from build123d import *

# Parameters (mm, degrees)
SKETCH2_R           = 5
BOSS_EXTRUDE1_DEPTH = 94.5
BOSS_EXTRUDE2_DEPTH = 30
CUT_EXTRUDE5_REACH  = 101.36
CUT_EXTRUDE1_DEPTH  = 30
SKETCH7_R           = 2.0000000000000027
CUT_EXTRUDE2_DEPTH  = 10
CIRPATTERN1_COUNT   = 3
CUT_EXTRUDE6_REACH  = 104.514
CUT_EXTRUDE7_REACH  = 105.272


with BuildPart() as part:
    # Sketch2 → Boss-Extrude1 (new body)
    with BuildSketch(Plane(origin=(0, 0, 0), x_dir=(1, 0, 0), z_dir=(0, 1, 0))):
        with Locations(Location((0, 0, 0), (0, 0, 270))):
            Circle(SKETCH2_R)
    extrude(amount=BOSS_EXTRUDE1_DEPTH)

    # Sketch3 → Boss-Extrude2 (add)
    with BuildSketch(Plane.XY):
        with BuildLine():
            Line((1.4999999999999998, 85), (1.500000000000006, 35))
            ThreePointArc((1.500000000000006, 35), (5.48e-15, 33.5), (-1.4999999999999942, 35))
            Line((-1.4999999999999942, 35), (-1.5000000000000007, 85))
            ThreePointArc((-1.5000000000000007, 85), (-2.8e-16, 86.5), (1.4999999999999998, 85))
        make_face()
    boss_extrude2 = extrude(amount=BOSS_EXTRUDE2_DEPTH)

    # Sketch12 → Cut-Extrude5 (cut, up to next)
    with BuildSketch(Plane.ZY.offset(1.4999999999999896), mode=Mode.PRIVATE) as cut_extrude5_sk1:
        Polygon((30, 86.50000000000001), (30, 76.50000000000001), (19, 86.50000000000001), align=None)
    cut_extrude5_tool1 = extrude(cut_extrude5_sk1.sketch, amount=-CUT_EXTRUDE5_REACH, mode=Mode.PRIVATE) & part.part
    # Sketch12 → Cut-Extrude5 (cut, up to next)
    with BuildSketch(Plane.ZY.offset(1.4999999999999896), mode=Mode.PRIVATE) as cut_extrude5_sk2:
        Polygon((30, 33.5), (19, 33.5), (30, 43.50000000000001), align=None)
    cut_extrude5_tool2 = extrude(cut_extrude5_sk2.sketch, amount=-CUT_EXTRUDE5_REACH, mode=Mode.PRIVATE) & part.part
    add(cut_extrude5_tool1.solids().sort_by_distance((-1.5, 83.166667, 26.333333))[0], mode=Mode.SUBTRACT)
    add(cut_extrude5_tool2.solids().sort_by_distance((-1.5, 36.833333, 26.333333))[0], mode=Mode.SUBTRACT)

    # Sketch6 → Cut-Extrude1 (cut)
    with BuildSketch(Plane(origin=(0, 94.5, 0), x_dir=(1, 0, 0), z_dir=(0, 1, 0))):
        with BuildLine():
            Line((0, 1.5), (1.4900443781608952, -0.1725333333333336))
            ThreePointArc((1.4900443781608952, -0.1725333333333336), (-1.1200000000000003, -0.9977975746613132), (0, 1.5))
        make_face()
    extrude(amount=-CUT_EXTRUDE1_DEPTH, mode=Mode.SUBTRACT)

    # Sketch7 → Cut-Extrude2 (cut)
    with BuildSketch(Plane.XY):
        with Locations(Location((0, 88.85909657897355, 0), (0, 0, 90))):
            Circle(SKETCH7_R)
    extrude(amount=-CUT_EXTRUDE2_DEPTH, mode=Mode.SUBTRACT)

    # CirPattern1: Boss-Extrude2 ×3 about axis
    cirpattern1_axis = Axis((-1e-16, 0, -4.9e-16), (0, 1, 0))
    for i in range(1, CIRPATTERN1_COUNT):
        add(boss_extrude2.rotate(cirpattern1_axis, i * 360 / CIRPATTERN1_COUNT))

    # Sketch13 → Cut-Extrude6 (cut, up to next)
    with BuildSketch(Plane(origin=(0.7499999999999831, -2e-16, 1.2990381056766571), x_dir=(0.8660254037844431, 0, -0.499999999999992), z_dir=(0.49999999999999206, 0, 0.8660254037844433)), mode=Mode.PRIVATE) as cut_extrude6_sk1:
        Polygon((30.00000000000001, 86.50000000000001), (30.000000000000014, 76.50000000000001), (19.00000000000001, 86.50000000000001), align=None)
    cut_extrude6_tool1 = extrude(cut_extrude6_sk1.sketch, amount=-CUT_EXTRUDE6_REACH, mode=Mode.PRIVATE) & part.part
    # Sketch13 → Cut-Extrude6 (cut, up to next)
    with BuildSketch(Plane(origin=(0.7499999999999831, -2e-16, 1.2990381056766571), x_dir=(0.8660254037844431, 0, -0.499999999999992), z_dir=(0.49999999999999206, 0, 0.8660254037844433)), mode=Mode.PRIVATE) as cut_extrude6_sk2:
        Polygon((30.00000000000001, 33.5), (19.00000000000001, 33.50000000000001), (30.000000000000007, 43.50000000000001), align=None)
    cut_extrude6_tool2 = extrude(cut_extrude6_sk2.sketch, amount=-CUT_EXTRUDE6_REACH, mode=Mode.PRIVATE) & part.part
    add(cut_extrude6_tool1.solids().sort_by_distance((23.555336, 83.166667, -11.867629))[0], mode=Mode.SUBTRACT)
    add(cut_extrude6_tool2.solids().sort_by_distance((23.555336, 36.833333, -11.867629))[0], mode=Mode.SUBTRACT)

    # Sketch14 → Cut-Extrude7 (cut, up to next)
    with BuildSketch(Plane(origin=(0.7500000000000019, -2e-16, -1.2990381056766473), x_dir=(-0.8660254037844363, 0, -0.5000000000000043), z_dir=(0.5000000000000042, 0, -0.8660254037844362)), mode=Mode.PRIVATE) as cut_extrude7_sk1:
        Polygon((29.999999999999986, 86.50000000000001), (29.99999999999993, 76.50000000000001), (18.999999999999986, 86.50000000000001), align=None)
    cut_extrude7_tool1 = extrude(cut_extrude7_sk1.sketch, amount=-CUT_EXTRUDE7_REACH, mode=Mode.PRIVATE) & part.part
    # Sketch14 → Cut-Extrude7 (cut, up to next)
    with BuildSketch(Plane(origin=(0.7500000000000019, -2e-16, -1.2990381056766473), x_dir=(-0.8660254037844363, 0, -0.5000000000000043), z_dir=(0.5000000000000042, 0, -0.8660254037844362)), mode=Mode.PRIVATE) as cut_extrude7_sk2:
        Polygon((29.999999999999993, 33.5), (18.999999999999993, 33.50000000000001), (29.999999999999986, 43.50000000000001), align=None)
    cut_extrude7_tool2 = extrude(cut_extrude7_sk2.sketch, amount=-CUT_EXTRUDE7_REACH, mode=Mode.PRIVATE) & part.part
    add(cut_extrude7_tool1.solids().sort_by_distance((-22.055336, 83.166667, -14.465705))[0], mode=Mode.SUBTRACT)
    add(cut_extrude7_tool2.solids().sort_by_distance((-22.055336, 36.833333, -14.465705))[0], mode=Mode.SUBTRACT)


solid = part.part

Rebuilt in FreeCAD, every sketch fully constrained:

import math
import FreeCAD as App
import Part
import Sketcher
from FreeCAD import Vector
Q = App.Units.Quantity

doc = App.newDocument("Part")
body = doc.addObject("PartDesign::Body", "Body")

sketch1 = doc.addObject("Sketcher::SketchObject", "Sketch")
body.addObject(sketch1)
sketch1.AttachmentSupport = (doc.XZ_Plane, [""])
sketch1.MapMode = "FlatFace"
sketch1.addGeometry(Part.Circle(Vector(0, 0, 0), Vector(0, 0, 1), 5), False)
sketch1.addConstraint(Sketcher.Constraint("Coincident", 0, 3, -1, 1))
sketch1.addConstraint(Sketcher.Constraint("Diameter", 0, Q("10 mm")))
pad1 = doc.addObject("PartDesign::Pad", "Pad")
body.addObject(pad1)
pad1.Profile = sketch1
pad1.Length = 94.5
pad1.Reversed = True

sketch2 = doc.addObject("Sketcher::SketchObject", "Sketch001")
body.addObject(sketch2)
sketch2.AttachmentSupport = (doc.XY_Plane, [""])
sketch2.MapMode = "FlatFace"
sketch2.addGeometry(Part.LineSegment(Vector(1.5, 35, 0), Vector(1.5, 85, 0)), False)
sketch2.addGeometry(Part.ArcOfCircle(Part.Circle(Vector(0, 85, 0), Vector(0, 0, 1), 1.5), math.radians(0), math.radians(180)), False)
sketch2.addGeometry(Part.LineSegment(Vector(-1.5, 85, 0), Vector(-1.5, 35, 0)), False)
sketch2.addGeometry(Part.ArcOfCircle(Part.Circle(Vector(0, 35, 0), Vector(0, 0, 1), 1.5), math.radians(180), math.radians(360)), False)
sketch2.addConstraint(Sketcher.Constraint("Tangent", 0, 2, 1, 1))
sketch2.addConstraint(Sketcher.Constraint("Tangent", 1, 2, 2, 1))
sketch2.addConstraint(Sketcher.Constraint("Tangent", 2, 2, 3, 1))
sketch2.addConstraint(Sketcher.Constraint("Tangent", 3, 2, 0, 1))
sketch2.addConstraint(Sketcher.Constraint("Vertical", 0))
sketch2.addConstraint(Sketcher.Constraint("Vertical", 2))
sketch2.addConstraint(Sketcher.Constraint("PointOnObject", 1, 3, -2))
sketch2.addConstraint(Sketcher.Constraint("Radius", 1, Q("1.5 mm")))
sketch2.addConstraint(Sketcher.Constraint("DistanceY", 0, 1, 0, 2, Q("50 mm")))
sketch2.addConstraint(Sketcher.Constraint("DistanceY", -1, 1, 1, 3, Q("85 mm")))
pad2 = doc.addObject("PartDesign::Pad", "Pad001")
body.addObject(pad2)
pad2.Profile = sketch2
pad2.Length = 30

sketch3 = doc.addObject("Sketcher::SketchObject", "Sketch002")
body.addObject(sketch3)
sketch3.AttachmentSupport = (doc.YZ_Plane, [""])
sketch3.MapMode = "FlatFace"
sketch3.AttachmentOffset = App.Placement(Vector(0, 0, -1.5), App.Rotation())
sketch3.addGeometry(Part.LineSegment(Vector(76, 30, 0), Vector(86, 30, 0)), False)
sketch3.addGeometry(Part.LineSegment(Vector(86, 30, 0), Vector(86, 19, 0)), False)
sketch3.addGeometry(Part.LineSegment(Vector(86, 19, 0), Vector(76, 30, 0)), False)
sketch3.addConstraint(Sketcher.Constraint("Coincident", 0, 2, 1, 1))
sketch3.addConstraint(Sketcher.Constraint("Coincident", 1, 2, 2, 1))
sketch3.addConstraint(Sketcher.Constraint("Coincident", 2, 2, 0, 1))
sketch3.addConstraint(Sketcher.Constraint("Horizontal", 0))
sketch3.addConstraint(Sketcher.Constraint("Vertical", 1))
sketch3.addConstraint(Sketcher.Constraint("DistanceX", 0, 1, 0, 2, Q("10 mm")))
sketch3.addConstraint(Sketcher.Constraint("DistanceY", 1, 2, 1, 1, Q("11 mm")))
sketch3.addConstraint(Sketcher.Constraint("DistanceY", -1, 1, 0, 2, Q("30 mm")))
sketch3.addConstraint(Sketcher.Constraint("DistanceX", -1, 1, 0, 2, Q("86.5 mm")))
pocket1 = doc.addObject("PartDesign::Pocket", "Pocket")
body.addObject(pocket1)
pocket1.Profile = sketch3
pocket1.Type = "UpToFirst"
pocket1.Reversed = True

sketch4 = doc.addObject("Sketcher::SketchObject", "Sketch003")
body.addObject(sketch4)
sketch4.AttachmentSupport = (doc.YZ_Plane, [""])
sketch4.MapMode = "FlatFace"
sketch4.AttachmentOffset = App.Placement(Vector(0, 0, -1.5), App.Rotation())
sketch4.addGeometry(Part.LineSegment(Vector(34, 19, 0), Vector(34, 30, 0)), False)
sketch4.addGeometry(Part.LineSegment(Vector(34, 30, 0), Vector(44, 30, 0)), False)
sketch4.addGeometry(Part.LineSegment(Vector(44, 30, 0), Vector(34, 19, 0)), False)
sketch4.addConstraint(Sketcher.Constraint("Coincident", 0, 2, 1, 1))
sketch4.addConstraint(Sketcher.Constraint("Coincident", 1, 2, 2, 1))
sketch4.addConstraint(Sketcher.Constraint("Coincident", 2, 2, 0, 1))
sketch4.addConstraint(Sketcher.Constraint("Vertical", 0))
sketch4.addConstraint(Sketcher.Constraint("Horizontal", 1))
sketch4.addConstraint(Sketcher.Constraint("DistanceX", 1, 1, 1, 2, Q("10 mm")))
sketch4.addConstraint(Sketcher.Constraint("DistanceY", 0, 1, 0, 2, Q("11 mm")))
sketch4.addConstraint(Sketcher.Constraint("DistanceY", -1, 1, 0, 2, Q("30 mm")))
sketch4.addConstraint(Sketcher.Constraint("DistanceX", -1, 1, 0, 2, Q("33.5 mm")))
pocket2 = doc.addObject("PartDesign::Pocket", "Pocket001")
body.addObject(pocket2)
pocket2.Profile = sketch4
pocket2.Type = "UpToFirst"
pocket2.Reversed = True

sketch5 = doc.addObject("Sketcher::SketchObject", "Sketch004")
body.addObject(sketch5)
sketch5.AttachmentSupport = (doc.XZ_Plane, [""])
sketch5.MapMode = "FlatFace"
sketch5.AttachmentOffset = App.Placement(Vector(0, 0, -94.5), App.Rotation())
sketch5.addGeometry(Part.LineSegment(Vector(1.5, 0.2, 0), Vector(0, -1.5, 0)), False)
sketch5.addGeometry(Part.ArcOfCircle(Part.Circle(Vector(0, 0, 0), Vector(0, 0, 1), 1.5), math.radians(7), math.radians(270)), False)
sketch5.addConstraint(Sketcher.Constraint("Coincident", 0, 1, 1, 1))
sketch5.addConstraint(Sketcher.Constraint("Coincident", 1, 2, 0, 2))
sketch5.addConstraint(Sketcher.Constraint("Coincident", 1, 3, -1, 1))
sketch5.addConstraint(Sketcher.Constraint("PointOnObject", 1, 2, -2))
sketch5.addConstraint(Sketcher.Constraint("Radius", 1, Q("1.5 mm")))
sketch5.addConstraint(Sketcher.Constraint("Distance", 0, Q("2.24 mm")))
pocket3 = doc.addObject("PartDesign::Pocket", "Pocket002")
body.addObject(pocket3)
pocket3.Profile = sketch5
pocket3.Length = 30
pocket3.Reversed = True

sketch6 = doc.addObject("Sketcher::SketchObject", "Sketch005")
body.addObject(sketch6)
sketch6.AttachmentSupport = (doc.XY_Plane, [""])
sketch6.MapMode = "FlatFace"
sketch6.addGeometry(Part.Circle(Vector(0, 88.9, 0), Vector(0, 0, 1), 2), False)
sketch6.addConstraint(Sketcher.Constraint("PointOnObject", 0, 3, -2))
sketch6.addConstraint(Sketcher.Constraint("Diameter", 0, Q("4 mm")))
sketch6.addConstraint(Sketcher.Constraint("DistanceY", -1, 1, 0, 3, Q("88.859097 mm")))
pocket4 = doc.addObject("PartDesign::Pocket", "Pocket003")
body.addObject(pocket4)
pocket4.Profile = sketch6
pocket4.Length = 10
doc.recompute()

polarpattern = doc.addObject("PartDesign::PolarPattern", "PolarPattern")
body.addObject(polarpattern)
polarpattern.Originals = [pad2]
polarpattern.Axis = (doc.Y_Axis, [""])
polarpattern.Angle = 360
polarpattern.Occurrences = 3
body.Tip = polarpattern

sketch7 = doc.addObject("Sketcher::SketchObject", "Sketch006")
body.addObject(sketch7)
sketch7.Placement = App.Placement(Vector(0.75, 0, 1.299038), App.Rotation(Vector(0.866025404, 0, -0.5), Vector(0, 1, 0), Vector(0.5, 0, 0.866025404), "ZXY"))
sketch7.addGeometry(Part.LineSegment(Vector(30, 77, 0), Vector(30, 87, 0)), False)
sketch7.addGeometry(Part.LineSegment(Vector(30, 87, 0), Vector(19, 87, 0)), False)
sketch7.addGeometry(Part.LineSegment(Vector(19, 87, 0), Vector(30, 77, 0)), False)
sketch7.addConstraint(Sketcher.Constraint("Coincident", 0, 2, 1, 1))
sketch7.addConstraint(Sketcher.Constraint("Coincident", 1, 2, 2, 1))
sketch7.addConstraint(Sketcher.Constraint("Coincident", 2, 2, 0, 1))
sketch7.addConstraint(Sketcher.Constraint("Vertical", 0))
sketch7.addConstraint(Sketcher.Constraint("Horizontal", 1))
sketch7.addConstraint(Sketcher.Constraint("DistanceX", 1, 2, 1, 1, Q("11 mm")))
sketch7.addConstraint(Sketcher.Constraint("DistanceY", 0, 1, 0, 2, Q("10 mm")))
sketch7.addConstraint(Sketcher.Constraint("DistanceX", -1, 1, 0, 2, Q("30 mm")))
sketch7.addConstraint(Sketcher.Constraint("DistanceY", -1, 1, 0, 2, Q("86.5 mm")))
pocket5 = doc.addObject("PartDesign::Pocket", "Pocket004")
body.addObject(pocket5)
pocket5.Profile = sketch7
pocket5.Type = "UpToFirst"

sketch8 = doc.addObject("Sketcher::SketchObject", "Sketch007")
body.addObject(sketch8)
sketch8.Placement = App.Placement(Vector(0.75, 0, 1.299038), App.Rotation(Vector(0.866025404, 0, -0.5), Vector(0, 1, 0), Vector(0.5, 0, 0.866025404), "ZXY"))
sketch8.addGeometry(Part.LineSegment(Vector(19, 34, 0), Vector(30, 34, 0)), False)
sketch8.addGeometry(Part.LineSegment(Vector(30, 34, 0), Vector(30, 44, 0)), False)
sketch8.addGeometry(Part.LineSegment(Vector(30, 44, 0), Vector(19, 34, 0)), False)
sketch8.addConstraint(Sketcher.Constraint("Coincident", 0, 2, 1, 1))
sketch8.addConstraint(Sketcher.Constraint("Coincident", 1, 2, 2, 1))
sketch8.addConstraint(Sketcher.Constraint("Coincident", 2, 2, 0, 1))
sketch8.addConstraint(Sketcher.Constraint("Horizontal", 0))
sketch8.addConstraint(Sketcher.Constraint("Vertical", 1))
sketch8.addConstraint(Sketcher.Constraint("DistanceX", 0, 1, 0, 2, Q("11 mm")))
sketch8.addConstraint(Sketcher.Constraint("DistanceY", 1, 1, 1, 2, Q("10 mm")))
sketch8.addConstraint(Sketcher.Constraint("DistanceX", -1, 1, 0, 2, Q("30 mm")))
sketch8.addConstraint(Sketcher.Constraint("DistanceY", -1, 1, 0, 2, Q("33.5 mm")))
pocket6 = doc.addObject("PartDesign::Pocket", "Pocket005")
body.addObject(pocket6)
pocket6.Profile = sketch8
pocket6.Type = "UpToFirst"

sketch9 = doc.addObject("Sketcher::SketchObject", "Sketch008")
body.addObject(sketch9)
sketch9.Placement = App.Placement(Vector(0.75, 0, -1.299038), App.Rotation(Vector(-0.866025404, 0, -0.5), Vector(0, 1, 0), Vector(0.5, 0, -0.866025404), "ZXY"))
sketch9.addGeometry(Part.LineSegment(Vector(30, 77, 0), Vector(30, 87, 0)), False)
sketch9.addGeometry(Part.LineSegment(Vector(30, 87, 0), Vector(19, 87, 0)), False)
sketch9.addGeometry(Part.LineSegment(Vector(19, 87, 0), Vector(30, 77, 0)), False)
sketch9.addConstraint(Sketcher.Constraint("Coincident", 0, 2, 1, 1))
sketch9.addConstraint(Sketcher.Constraint("Coincident", 1, 2, 2, 1))
sketch9.addConstraint(Sketcher.Constraint("Coincident", 2, 2, 0, 1))
sketch9.addConstraint(Sketcher.Constraint("Vertical", 0))
sketch9.addConstraint(Sketcher.Constraint("Horizontal", 1))
sketch9.addConstraint(Sketcher.Constraint("DistanceX", 1, 2, 1, 1, Q("11 mm")))
sketch9.addConstraint(Sketcher.Constraint("DistanceY", 0, 1, 0, 2, Q("10 mm")))
sketch9.addConstraint(Sketcher.Constraint("DistanceX", -1, 1, 0, 2, Q("30 mm")))
sketch9.addConstraint(Sketcher.Constraint("DistanceY", -1, 1, 0, 2, Q("86.5 mm")))
pocket7 = doc.addObject("PartDesign::Pocket", "Pocket006")
body.addObject(pocket7)
pocket7.Profile = sketch9
pocket7.Type = "UpToFirst"

sketch10 = doc.addObject("Sketcher::SketchObject", "Sketch009")
body.addObject(sketch10)
sketch10.Placement = App.Placement(Vector(0.75, 0, -1.299038), App.Rotation(Vector(-0.866025404, 0, -0.5), Vector(0, 1, 0), Vector(0.5, 0, -0.866025404), "ZXY"))
sketch10.addGeometry(Part.LineSegment(Vector(19, 34, 0), Vector(30, 34, 0)), False)
sketch10.addGeometry(Part.LineSegment(Vector(30, 34, 0), Vector(30, 44, 0)), False)
sketch10.addGeometry(Part.LineSegment(Vector(30, 44, 0), Vector(19, 34, 0)), False)
sketch10.addConstraint(Sketcher.Constraint("Coincident", 0, 2, 1, 1))
sketch10.addConstraint(Sketcher.Constraint("Coincident", 1, 2, 2, 1))
sketch10.addConstraint(Sketcher.Constraint("Coincident", 2, 2, 0, 1))
sketch10.addConstraint(Sketcher.Constraint("Horizontal", 0))
sketch10.addConstraint(Sketcher.Constraint("Vertical", 1))
sketch10.addConstraint(Sketcher.Constraint("DistanceX", 0, 1, 0, 2, Q("11 mm")))
sketch10.addConstraint(Sketcher.Constraint("DistanceY", 1, 1, 1, 2, Q("10 mm")))
sketch10.addConstraint(Sketcher.Constraint("DistanceX", -1, 1, 0, 2, Q("30 mm")))
sketch10.addConstraint(Sketcher.Constraint("DistanceY", -1, 1, 0, 2, Q("33.5 mm")))
pocket8 = doc.addObject("PartDesign::Pocket", "Pocket007")
body.addObject(pocket8)
pocket8.Profile = sketch10
pocket8.Type = "UpToFirst"

doc.recompute()
